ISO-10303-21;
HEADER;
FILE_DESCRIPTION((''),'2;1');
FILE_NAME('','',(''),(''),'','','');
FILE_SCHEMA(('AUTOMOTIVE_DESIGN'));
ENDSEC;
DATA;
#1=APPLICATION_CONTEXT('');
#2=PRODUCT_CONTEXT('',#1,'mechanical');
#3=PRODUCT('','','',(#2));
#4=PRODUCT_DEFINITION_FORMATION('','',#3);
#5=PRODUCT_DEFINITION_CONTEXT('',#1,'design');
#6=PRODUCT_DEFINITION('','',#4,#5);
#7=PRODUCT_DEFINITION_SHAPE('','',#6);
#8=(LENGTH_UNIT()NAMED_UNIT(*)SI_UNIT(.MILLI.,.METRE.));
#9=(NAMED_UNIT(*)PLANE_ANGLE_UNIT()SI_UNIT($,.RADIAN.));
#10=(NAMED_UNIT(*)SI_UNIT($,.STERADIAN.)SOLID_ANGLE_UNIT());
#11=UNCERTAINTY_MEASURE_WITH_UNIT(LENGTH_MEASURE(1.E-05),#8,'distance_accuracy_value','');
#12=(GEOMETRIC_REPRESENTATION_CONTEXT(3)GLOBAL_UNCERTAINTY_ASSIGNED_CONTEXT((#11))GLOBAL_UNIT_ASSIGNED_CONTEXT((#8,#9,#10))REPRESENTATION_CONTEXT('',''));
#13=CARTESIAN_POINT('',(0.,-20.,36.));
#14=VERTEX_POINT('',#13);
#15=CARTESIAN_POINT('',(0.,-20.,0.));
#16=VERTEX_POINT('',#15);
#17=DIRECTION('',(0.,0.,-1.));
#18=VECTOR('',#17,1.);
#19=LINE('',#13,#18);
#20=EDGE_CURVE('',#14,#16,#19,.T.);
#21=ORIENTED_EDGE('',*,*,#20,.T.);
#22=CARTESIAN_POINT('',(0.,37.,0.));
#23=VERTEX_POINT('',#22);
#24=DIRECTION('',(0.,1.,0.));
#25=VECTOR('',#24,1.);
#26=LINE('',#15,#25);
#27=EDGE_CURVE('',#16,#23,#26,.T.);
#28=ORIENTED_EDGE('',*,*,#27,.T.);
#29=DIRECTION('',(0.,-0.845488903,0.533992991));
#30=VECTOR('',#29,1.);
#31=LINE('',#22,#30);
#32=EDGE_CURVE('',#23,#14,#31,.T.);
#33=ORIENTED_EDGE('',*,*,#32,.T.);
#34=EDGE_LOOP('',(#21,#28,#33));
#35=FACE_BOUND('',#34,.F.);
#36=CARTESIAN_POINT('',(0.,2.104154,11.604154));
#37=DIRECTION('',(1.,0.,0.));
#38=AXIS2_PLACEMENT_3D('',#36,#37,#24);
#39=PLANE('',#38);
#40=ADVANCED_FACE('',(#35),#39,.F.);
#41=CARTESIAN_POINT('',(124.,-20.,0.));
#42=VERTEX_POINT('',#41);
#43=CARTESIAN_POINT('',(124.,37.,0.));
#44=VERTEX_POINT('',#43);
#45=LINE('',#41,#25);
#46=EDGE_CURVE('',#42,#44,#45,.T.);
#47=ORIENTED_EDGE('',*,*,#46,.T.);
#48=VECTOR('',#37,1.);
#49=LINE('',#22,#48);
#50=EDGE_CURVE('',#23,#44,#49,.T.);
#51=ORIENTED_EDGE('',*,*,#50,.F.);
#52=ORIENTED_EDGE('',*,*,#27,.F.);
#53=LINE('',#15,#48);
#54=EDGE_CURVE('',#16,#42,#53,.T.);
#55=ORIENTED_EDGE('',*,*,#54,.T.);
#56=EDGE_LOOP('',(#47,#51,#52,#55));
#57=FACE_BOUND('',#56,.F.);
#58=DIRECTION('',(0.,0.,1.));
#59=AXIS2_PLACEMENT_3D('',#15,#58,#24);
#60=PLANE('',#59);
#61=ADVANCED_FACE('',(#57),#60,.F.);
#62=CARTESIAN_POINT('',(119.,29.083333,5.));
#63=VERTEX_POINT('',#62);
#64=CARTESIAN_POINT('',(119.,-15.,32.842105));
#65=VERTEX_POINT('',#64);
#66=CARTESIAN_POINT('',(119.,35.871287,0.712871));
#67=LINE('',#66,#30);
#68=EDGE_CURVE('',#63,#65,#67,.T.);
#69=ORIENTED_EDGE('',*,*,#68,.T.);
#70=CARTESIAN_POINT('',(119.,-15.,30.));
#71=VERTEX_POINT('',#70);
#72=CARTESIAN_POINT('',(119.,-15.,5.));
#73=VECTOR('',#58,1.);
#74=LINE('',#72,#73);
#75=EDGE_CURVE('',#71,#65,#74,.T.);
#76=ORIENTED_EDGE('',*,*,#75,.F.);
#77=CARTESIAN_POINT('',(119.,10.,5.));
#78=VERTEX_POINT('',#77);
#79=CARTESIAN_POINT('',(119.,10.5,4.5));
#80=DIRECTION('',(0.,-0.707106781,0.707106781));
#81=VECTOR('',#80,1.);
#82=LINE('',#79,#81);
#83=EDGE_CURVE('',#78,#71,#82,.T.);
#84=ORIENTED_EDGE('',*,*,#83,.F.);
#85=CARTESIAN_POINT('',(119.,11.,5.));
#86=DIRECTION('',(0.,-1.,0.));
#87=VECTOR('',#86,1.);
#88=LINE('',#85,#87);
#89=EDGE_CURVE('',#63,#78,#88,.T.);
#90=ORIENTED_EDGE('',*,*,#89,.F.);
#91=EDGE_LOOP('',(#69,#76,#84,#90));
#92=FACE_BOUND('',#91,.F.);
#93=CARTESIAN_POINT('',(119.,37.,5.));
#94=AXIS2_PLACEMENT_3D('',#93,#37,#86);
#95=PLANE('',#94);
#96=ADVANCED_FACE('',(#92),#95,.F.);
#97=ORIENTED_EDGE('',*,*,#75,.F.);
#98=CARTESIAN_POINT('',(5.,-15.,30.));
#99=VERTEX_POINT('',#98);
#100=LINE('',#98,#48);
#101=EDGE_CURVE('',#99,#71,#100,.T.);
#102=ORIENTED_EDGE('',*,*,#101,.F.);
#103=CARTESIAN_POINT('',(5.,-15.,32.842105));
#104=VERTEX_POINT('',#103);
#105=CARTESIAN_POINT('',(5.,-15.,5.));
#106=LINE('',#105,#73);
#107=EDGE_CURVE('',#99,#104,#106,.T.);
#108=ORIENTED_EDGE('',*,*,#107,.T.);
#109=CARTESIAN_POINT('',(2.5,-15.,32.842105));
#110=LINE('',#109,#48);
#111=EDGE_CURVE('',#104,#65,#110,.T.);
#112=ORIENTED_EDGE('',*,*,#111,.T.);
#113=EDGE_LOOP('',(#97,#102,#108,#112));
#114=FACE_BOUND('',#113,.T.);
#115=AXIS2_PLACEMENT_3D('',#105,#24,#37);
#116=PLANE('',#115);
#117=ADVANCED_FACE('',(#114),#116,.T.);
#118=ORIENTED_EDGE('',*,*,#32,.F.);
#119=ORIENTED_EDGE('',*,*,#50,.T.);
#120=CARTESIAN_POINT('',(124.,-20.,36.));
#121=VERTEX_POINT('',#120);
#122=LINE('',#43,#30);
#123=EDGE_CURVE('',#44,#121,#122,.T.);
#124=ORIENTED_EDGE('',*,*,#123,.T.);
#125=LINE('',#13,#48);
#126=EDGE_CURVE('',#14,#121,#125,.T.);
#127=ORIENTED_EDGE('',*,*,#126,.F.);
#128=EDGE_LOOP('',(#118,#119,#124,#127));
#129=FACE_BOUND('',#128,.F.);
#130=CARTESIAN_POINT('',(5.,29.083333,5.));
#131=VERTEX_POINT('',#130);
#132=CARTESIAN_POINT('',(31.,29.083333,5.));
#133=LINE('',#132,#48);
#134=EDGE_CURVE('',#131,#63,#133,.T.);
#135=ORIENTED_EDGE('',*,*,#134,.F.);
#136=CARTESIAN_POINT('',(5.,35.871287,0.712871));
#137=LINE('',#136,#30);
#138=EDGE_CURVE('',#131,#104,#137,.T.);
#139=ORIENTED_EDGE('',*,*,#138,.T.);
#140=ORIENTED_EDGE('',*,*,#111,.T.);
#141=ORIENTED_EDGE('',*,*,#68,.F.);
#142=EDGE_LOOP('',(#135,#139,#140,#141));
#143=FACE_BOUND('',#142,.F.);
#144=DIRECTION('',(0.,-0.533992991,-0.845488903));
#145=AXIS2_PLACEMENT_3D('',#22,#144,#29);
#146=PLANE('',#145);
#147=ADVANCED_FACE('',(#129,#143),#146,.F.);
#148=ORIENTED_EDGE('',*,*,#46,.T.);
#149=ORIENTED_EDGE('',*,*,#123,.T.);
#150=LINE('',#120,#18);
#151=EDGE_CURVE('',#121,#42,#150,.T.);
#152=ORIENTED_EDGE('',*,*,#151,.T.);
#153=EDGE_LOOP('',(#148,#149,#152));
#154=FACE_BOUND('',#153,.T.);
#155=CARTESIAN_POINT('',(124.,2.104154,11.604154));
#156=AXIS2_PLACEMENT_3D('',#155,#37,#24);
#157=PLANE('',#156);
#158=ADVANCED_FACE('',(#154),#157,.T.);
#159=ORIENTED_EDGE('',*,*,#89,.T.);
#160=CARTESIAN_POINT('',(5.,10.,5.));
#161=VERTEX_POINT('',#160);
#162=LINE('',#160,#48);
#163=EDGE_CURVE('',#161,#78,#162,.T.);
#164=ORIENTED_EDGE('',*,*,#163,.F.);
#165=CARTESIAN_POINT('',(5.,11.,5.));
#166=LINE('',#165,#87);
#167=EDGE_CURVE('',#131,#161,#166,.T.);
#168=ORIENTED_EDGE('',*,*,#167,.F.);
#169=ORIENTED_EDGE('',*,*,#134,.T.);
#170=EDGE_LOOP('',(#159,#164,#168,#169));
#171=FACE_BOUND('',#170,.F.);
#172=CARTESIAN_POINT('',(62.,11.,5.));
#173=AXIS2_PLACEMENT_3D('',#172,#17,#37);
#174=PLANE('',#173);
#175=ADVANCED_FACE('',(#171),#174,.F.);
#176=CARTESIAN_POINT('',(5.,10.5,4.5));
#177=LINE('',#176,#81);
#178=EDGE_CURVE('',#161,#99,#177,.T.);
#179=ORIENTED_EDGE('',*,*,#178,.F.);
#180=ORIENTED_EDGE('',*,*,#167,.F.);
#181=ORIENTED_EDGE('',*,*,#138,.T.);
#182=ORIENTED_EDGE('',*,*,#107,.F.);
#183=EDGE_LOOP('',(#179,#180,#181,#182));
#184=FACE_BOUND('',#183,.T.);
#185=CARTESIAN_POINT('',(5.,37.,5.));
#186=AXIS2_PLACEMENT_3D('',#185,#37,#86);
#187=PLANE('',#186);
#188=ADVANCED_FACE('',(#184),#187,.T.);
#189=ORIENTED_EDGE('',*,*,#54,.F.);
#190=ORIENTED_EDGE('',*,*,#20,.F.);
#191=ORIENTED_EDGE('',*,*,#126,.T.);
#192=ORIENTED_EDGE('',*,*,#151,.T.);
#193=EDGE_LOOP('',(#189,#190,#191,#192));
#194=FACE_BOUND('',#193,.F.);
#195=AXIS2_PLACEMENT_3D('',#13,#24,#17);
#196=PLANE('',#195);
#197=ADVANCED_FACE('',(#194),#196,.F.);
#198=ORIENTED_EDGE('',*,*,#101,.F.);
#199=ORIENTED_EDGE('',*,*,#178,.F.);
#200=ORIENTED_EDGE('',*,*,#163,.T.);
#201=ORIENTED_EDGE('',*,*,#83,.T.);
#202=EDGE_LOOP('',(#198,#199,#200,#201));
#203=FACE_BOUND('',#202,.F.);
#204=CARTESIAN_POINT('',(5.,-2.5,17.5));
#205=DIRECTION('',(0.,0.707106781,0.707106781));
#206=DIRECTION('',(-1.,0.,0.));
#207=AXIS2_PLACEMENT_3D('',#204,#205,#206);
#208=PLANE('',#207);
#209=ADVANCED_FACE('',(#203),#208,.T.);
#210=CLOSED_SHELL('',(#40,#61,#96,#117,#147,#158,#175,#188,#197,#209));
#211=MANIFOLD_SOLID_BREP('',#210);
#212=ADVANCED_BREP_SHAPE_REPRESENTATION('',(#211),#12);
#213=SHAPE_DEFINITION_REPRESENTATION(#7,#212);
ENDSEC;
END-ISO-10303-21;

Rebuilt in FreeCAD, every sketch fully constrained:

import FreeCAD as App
import Part
import Sketcher
Q = App.Units.Quantity


def edges_at(feature, points):
    """Names of the edges that pass closest to the given points."""
    edges = feature.Shape.Edges
    near = lambda p: min(range(len(edges)), key=lambda i: edges[i].distToShape(Part.Vertex(*p))[0])
    return sorted({f"Edge{near(p) + 1}" for p in points})

doc = App.newDocument("Part")
body = doc.addObject("PartDesign::Body", "Body")

# Sketch on YZ plane
sketch1 = doc.addObject("Sketcher::SketchObject", "Sketch")
body.addObject(sketch1)
sketch1.AttachmentSupport = (doc.YZ_Plane, [""])
sketch1.MapMode = "FlatFace"
sketch1.addGeometry([
    Part.LineSegment(App.Vector(-20, 36, 0), App.Vector(-20, 0, 0)),
    Part.LineSegment(App.Vector(-20, 0, 0), App.Vector(37, 0, 0)),
    Part.LineSegment(App.Vector(37, 0, 0), App.Vector(-20, 36, 0)),
], False)
sketch1.addConstraint([
    Sketcher.Constraint("Coincident", 0, 2, 1, 1),
    Sketcher.Constraint("Coincident", 1, 2, 2, 1),
    Sketcher.Constraint("Coincident", 2, 2, 0, 1),
    Sketcher.Constraint("Vertical", 0),
    Sketcher.Constraint("Horizontal", 1),
    Sketcher.Constraint("PointOnObject", 0, 2, -1),
    Sketcher.Constraint("DistanceX", 1, 1, 1, 2, Q("57 mm")),
    Sketcher.Constraint("DistanceY", 0, 2, 0, 1, Q("36 mm")),
    Sketcher.Constraint("DistanceX", 0, 2, -1, 1, Q("20 mm")),
])
pad1 = doc.addObject("PartDesign::Pad", "Pad")
body.addObject(pad1)
pad1.Profile = sketch1
pad1.Length = 124

# Sketch on XY plane
sketch2 = doc.addObject("Sketcher::SketchObject", "Sketch001")
body.addObject(sketch2)
sketch2.AttachmentSupport = (doc.XY_Plane, [""])
sketch2.MapMode = "FlatFace"
sketch2.AttachmentOffset = App.Placement(App.Vector(0, 0, 5), App.Rotation())
sketch2.addGeometry([
    Part.LineSegment(App.Vector(5, -15, 0), App.Vector(5, 37, 0)),
    Part.LineSegment(App.Vector(5, 37, 0), App.Vector(119, 37, 0)),
    Part.LineSegment(App.Vector(119, 37, 0), App.Vector(119, -15, 0)),
    Part.LineSegment(App.Vector(119, -15, 0), App.Vector(5, -15, 0)),
], False)
sketch2.addConstraint([
    Sketcher.Constraint("Coincident", 0, 2, 1, 1),
    Sketcher.Constraint("Coincident", 1, 2, 2, 1),
    Sketcher.Constraint("Coincident", 2, 2, 3, 1),
    Sketcher.Constraint("Coincident", 3, 2, 0, 1),
    Sketcher.Constraint("Vertical", 0),
    Sketcher.Constraint("Horizontal", 1),
    Sketcher.Constraint("Vertical", 2),
    Sketcher.Constraint("Horizontal", 3),
    Sketcher.Constraint("DistanceX", 1, 1, 1, 2, Q("114 mm")),
    Sketcher.Constraint("DistanceY", 0, 1, 0, 2, Q("52 mm")),
    Sketcher.Constraint("DistanceX", -1, 1, 0, 2, Q("5 mm")),
    Sketcher.Constraint("DistanceY", -1, 1, 0, 2, Q("37 mm")),
])
pocket1 = doc.addObject("PartDesign::Pocket", "Pocket")
body.addObject(pocket1)
pocket1.Profile = sketch2
pocket1.Length = 31.001
pocket1.Reversed = True
doc.recompute()

chamfer = doc.addObject("PartDesign::Chamfer", "Chamfer")
body.addObject(chamfer)
chamfer.Base = (pocket1, edges_at(pocket1, [(62, -15, 5)]))
chamfer.Size = 25

doc.recompute()
